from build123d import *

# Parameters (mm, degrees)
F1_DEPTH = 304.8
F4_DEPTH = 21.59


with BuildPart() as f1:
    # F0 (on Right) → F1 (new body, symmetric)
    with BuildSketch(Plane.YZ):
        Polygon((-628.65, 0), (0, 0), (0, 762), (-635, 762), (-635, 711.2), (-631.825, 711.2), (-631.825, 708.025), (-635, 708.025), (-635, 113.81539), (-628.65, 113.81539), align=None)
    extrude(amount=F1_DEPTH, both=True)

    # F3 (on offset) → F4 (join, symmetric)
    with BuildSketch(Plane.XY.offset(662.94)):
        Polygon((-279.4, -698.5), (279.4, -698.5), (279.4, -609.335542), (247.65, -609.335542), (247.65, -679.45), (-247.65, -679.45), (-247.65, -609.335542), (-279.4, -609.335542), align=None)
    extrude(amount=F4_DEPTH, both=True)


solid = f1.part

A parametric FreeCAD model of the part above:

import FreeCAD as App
import Part
import Sketcher
Q = App.Units.Quantity


def add_polygon(sketch, points):
    """Adds a closed chain of lines whose ends are joined by coincident constraints."""
    first, n = sketch.GeometryCount, len(points)
    for a, b in zip(points, points[1:] + points[:1]):
        sketch.addGeometry(Part.LineSegment(App.Vector(*a, 0), App.Vector(*b, 0)), False)
    for i in range(n):
        sketch.addConstraint(Sketcher.Constraint("Coincident", first + i, 2, first + (i + 1) % n, 1))

doc = App.newDocument("Part")
params = doc.addObject("Spreadsheet::Sheet", "Params")
for row, (alias, value) in enumerate([
    ("sketch1_width", "25 in"),
    ("sketch1_height", "30 in"),
    ("sketch1_height2", "2 in"),
    ("sketch1_width2", "24.75 in"),
    ("sketch1_width3", "0.125 in"),
    ("pad1_length", "24 in"),
    ("sketch2_width", "22 in"),
    ("sketch2_width2", "19.5 in"),
    ("pad2_length", "1.7 in"),
], start=1):
    params.set(f"A{row}", alias)
    params.set(f"B{row}", "=" + value)
    params.setAlias(f"B{row}", alias)

body = doc.addObject("PartDesign::Body", "Body")

sketch1 = body.newObject("Sketcher::SketchObject", "Sketch")
sketch1.AttachmentSupport = (doc.getObject("YZ_Plane"), [""])
sketch1.MapMode = "FlatFace"
add_polygon(sketch1, [(-628.65, 0), (0, 0), (0, 762), (-635, 762), (-635, 711.2), (-631.825, 711.2), (-631.825, 708.025), (-635, 708.025), (-635, 113.81539), (-628.65, 113.81539)])
sketch1.addConstraint([
    Sketcher.Constraint("Horizontal", 0),
    Sketcher.Constraint("Vertical", 1),
    Sketcher.Constraint("Horizontal", 2),
    Sketcher.Constraint("Vertical", 3),
    Sketcher.Constraint("Horizontal", 4),
    Sketcher.Constraint("Vertical", 5),
    Sketcher.Constraint("Horizontal", 6),
    Sketcher.Constraint("Vertical", 7),
    Sketcher.Constraint("Horizontal", 8),
    Sketcher.Constraint("Vertical", 9),
    Sketcher.Constraint("Coincident", 0, 2, -1, 1),
    Sketcher.Constraint("Vertical", 3, 2, 6, 2),
    Sketcher.Constraint("Equal", 6, 5),
    Sketcher.Constraint("DistanceX", 2, 2, 2, 1, Q("25 in")),
    Sketcher.Constraint("DistanceY", 1, 1, 1, 2, Q("30 in")),
    Sketcher.Constraint("DistanceY", 3, 2, 3, 1, Q("2 in")),
    Sketcher.Constraint("DistanceX", 0, 1, 0, 2, Q("24.75 in")),
    Sketcher.Constraint("DistanceX", 4, 1, 4, 2, Q("0.125 in")),
    Sketcher.Constraint("DistanceY", 7, 2, 7, 1, Q("594.20961 mm")),
])
sketch1.setExpression("Constraints[23]", "Params.sketch1_width")
sketch1.setExpression("Constraints[24]", "Params.sketch1_height")
sketch1.setExpression("Constraints[25]", "Params.sketch1_height2")
sketch1.setExpression("Constraints[26]", "Params.sketch1_width2")
sketch1.setExpression("Constraints[27]", "Params.sketch1_width3")
pad1 = body.newObject("PartDesign::Pad", "Pad")
pad1.Profile = sketch1
pad1.setExpression("Length", "Params.pad1_length")
pad1.Midplane = True

sketch2 = body.newObject("Sketcher::SketchObject", "Sketch001")
sketch2.AttachmentSupport = (doc.getObject("XY_Plane"), [""])
sketch2.MapMode = "FlatFace"
sketch2.AttachmentOffset = App.Placement(App.Vector(0, 0, 26.1 * 25.4), App.Rotation())
add_polygon(sketch2, [(-279.4, -698.5), (279.4, -698.5), (279.4, -609.335542), (247.65, -609.335542), (247.65, -679.45), (-247.65, -679.45), (-247.65, -609.335542), (-279.4, -609.335542)])
sketch2.addConstraint([
    Sketcher.Constraint("Horizontal", 0),
    Sketcher.Constraint("Vertical", 1),
    Sketcher.Constraint("Horizontal", 2),
    Sketcher.Constraint("Vertical", 3),
    Sketcher.Constraint("Horizontal", 4),
    Sketcher.Constraint("Vertical", 5),
    Sketcher.Constraint("Horizontal", 6),
    Sketcher.Constraint("Vertical", 7),
    Sketcher.Constraint("Symmetric", 2, 2, 5, 2, -2),
    Sketcher.Constraint("Equal", 2, 6),
    Sketcher.Constraint("DistanceX", 0, 1, 0, 2, Q("22 in")),
    Sketcher.Constraint("DistanceX", 4, 2, 4, 1, Q("19.5 in")),
    Sketcher.Constraint("DistanceY", 0, 2, -1, 1, Q("27.5 in")),
    Sketcher.Constraint("DistanceY", 3, 2, -1, 1, Q("26.75 in")),
    Sketcher.Constraint("DistanceY", 3, 2, 3, 1, Q("70.114458 mm")),
])
sketch2.setExpression("Constraints[18]", "Params.sketch2_width")
sketch2.setExpression("Constraints[19]", "Params.sketch2_width2")
pad2 = body.newObject("PartDesign::Pad", "Pad001")
pad2.Profile = sketch2
pad2.setExpression("Length", "Params.pad2_length")
pad2.Midplane = True

doc.recompute()
